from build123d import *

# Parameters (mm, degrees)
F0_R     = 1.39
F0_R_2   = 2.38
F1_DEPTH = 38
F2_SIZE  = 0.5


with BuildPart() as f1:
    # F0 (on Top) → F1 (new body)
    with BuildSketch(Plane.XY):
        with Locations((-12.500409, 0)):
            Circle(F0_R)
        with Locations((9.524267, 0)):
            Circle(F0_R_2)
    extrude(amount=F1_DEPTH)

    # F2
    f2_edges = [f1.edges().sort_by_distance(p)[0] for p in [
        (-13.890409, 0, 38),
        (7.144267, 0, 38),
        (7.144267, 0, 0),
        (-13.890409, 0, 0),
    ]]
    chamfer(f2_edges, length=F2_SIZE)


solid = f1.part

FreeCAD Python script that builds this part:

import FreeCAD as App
import Part
import Sketcher
from FreeCAD import Vector
Q = App.Units.Quantity


def edges_at(feature, points):
    """Names of the edges that pass closest to the given points."""
    edges = feature.Shape.Edges
    near = lambda p: min(range(len(edges)), key=lambda i: edges[i].distToShape(Part.Vertex(*p))[0])
    return sorted({f"Edge{near(p) + 1}" for p in points})

doc = App.newDocument("Part")
body = doc.addObject("PartDesign::Body", "Body")
body.AllowCompound = True

# Sketch on XY plane
sketch1 = body.newObject("Sketcher::SketchObject", "Sketch")
sketch1.AttachmentSupport = (doc.getObject("XY_Plane"), [""])
sketch1.MapMode = "FlatFace"
sketch1.addGeometry([
    Part.Circle(Vector(-12.5, 0, 0), Vector(0, 0, 1), 1.4),
    Part.Circle(Vector(9.5, 0, 0), Vector(0, 0, 1), 2.4),
], False)
sketch1.addConstraint([
    Sketcher.Constraint("PointOnObject", 0, 3, -1),
    Sketcher.Constraint("PointOnObject", 1, 3, -1),
    Sketcher.Constraint("Diameter", 0, Q("2.78 mm")),
    Sketcher.Constraint("Diameter", 1, Q("4.76 mm")),
    Sketcher.Constraint("DistanceX", 0, 3, -1, 1, Q("12.500409 mm")),
    Sketcher.Constraint("DistanceX", -1, 1, 1, 3, Q("9.524267 mm")),
])
pad1 = body.newObject("PartDesign::Pad", "Pad")
pad1.Profile = sketch1
pad1.Length = 38
doc.recompute()

chamfer = body.newObject("PartDesign::Chamfer", "Chamfer")
chamfer.Base = (pad1, edges_at(pad1, [
    (-13.89, 0, 38),
    (7.144, 0, 38),
    (7.144, 0, 0),
    (-13.89, 0, 0),
]))
chamfer.Size = 0.5

doc.recompute()
